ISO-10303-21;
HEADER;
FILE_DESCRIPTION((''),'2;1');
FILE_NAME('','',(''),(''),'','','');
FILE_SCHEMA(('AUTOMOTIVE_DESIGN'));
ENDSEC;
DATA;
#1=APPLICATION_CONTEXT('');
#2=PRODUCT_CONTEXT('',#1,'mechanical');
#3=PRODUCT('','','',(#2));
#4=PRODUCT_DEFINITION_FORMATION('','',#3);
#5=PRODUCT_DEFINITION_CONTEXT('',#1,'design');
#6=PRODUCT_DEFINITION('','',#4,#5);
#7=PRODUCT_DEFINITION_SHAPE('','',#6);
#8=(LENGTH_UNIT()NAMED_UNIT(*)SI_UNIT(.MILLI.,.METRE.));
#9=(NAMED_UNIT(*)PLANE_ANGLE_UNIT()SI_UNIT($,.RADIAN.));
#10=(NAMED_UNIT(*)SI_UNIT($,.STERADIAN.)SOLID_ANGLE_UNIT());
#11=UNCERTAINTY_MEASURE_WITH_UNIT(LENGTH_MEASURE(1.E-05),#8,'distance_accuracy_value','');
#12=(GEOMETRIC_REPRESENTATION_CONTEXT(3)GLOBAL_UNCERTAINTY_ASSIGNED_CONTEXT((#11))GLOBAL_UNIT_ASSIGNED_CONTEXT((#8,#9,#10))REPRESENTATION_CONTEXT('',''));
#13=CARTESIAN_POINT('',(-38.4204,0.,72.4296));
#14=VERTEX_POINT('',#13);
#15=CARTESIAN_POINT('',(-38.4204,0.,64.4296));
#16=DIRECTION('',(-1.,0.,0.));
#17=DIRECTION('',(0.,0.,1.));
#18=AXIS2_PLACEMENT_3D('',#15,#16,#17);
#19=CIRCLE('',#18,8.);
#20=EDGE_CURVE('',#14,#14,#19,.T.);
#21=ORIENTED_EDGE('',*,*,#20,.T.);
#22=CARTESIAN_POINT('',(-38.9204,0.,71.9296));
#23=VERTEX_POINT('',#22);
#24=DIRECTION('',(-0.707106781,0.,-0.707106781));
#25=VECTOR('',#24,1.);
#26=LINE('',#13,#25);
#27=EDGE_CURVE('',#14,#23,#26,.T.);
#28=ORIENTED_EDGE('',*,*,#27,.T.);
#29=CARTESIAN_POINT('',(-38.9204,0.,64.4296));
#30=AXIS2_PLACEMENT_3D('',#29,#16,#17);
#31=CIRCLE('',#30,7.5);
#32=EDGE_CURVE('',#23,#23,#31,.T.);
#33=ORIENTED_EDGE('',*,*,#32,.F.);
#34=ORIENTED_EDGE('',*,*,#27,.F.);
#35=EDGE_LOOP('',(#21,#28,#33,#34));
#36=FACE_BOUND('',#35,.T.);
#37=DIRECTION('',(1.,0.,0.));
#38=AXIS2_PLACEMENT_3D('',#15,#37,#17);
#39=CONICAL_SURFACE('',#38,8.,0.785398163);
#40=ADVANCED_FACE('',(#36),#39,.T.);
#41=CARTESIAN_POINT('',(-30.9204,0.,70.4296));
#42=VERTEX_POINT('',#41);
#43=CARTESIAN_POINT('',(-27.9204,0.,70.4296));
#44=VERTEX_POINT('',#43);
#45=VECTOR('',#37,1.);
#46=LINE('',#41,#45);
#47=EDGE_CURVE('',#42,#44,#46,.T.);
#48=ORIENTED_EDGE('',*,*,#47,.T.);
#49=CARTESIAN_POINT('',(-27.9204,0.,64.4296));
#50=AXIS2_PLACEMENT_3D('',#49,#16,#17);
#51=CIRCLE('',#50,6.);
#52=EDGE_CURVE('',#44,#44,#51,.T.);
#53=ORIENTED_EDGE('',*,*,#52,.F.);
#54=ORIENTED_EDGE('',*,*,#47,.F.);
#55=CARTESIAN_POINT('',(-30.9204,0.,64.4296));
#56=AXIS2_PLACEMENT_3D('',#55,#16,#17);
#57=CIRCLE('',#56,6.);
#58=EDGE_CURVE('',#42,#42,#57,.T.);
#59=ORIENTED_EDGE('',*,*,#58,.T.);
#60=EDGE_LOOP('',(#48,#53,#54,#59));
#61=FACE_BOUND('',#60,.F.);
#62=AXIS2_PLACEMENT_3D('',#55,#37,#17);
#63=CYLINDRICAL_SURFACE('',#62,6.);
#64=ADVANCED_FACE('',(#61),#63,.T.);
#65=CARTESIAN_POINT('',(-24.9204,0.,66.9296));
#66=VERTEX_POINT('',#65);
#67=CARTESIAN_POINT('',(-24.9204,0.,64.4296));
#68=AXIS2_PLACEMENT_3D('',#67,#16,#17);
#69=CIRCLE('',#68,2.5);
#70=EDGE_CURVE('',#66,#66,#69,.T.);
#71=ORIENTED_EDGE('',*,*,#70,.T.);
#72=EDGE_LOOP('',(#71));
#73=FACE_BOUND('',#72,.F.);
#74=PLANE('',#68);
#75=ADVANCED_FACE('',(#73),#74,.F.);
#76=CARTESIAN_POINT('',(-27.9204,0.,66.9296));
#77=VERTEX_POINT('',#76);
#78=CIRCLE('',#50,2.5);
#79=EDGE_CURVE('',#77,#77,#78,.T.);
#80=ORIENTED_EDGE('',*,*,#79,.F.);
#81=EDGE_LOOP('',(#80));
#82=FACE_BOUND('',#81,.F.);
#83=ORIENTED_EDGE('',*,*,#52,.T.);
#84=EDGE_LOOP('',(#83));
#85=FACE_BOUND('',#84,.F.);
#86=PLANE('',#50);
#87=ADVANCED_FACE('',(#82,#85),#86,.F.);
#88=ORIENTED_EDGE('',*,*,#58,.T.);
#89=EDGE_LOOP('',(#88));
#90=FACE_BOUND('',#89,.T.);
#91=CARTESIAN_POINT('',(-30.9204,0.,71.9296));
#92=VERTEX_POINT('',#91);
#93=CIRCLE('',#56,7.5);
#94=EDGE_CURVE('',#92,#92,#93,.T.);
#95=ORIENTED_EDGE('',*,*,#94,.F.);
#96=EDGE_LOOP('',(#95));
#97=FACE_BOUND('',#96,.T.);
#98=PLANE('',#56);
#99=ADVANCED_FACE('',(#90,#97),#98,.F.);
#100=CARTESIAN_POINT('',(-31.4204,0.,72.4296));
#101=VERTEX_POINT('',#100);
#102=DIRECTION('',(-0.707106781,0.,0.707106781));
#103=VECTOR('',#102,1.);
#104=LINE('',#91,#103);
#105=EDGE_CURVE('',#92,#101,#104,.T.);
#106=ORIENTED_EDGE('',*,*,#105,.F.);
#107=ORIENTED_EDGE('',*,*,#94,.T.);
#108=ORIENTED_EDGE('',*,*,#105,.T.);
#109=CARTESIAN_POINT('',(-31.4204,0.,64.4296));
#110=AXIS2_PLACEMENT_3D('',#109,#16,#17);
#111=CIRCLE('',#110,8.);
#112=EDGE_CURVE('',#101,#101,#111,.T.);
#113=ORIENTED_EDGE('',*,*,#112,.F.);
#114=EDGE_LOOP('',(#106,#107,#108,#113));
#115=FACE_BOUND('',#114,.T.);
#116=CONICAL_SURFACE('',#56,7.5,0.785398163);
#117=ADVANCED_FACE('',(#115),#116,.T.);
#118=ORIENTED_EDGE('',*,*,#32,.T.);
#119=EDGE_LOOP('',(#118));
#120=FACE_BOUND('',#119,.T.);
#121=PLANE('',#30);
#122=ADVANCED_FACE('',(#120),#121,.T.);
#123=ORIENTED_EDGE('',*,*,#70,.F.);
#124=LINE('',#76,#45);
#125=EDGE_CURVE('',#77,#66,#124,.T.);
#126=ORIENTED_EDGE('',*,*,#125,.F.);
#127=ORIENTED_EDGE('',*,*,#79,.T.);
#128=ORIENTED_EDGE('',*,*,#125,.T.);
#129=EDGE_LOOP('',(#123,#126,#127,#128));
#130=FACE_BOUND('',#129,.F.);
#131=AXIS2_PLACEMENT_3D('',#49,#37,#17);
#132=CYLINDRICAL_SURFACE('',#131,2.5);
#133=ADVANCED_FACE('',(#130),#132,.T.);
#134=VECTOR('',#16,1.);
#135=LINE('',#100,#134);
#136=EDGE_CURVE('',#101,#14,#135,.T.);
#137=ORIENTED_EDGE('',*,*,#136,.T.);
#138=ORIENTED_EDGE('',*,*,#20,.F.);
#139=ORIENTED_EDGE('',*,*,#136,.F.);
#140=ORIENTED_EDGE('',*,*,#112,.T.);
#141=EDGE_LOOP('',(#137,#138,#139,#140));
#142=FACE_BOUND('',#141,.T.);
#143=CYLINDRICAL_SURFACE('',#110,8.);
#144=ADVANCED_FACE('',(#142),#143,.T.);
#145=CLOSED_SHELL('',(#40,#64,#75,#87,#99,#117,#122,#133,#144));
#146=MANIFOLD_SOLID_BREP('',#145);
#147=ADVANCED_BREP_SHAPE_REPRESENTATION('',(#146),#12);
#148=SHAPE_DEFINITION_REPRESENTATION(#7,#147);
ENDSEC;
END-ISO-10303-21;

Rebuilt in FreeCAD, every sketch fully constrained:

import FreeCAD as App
import Part
import Sketcher
from FreeCAD import Vector

doc = App.newDocument("Part")
body = doc.addObject("PartDesign::Body", "Body")

# Sketch on XZ plane
sketch1 = body.newObject("Sketcher::SketchObject", "Sketch")
sketch1.AttachmentSupport = (doc.getObject("XZ_Plane"), [""])
sketch1.MapMode = "FlatFace"
sketch1.addGeometry([
    Part.LineSegment(Vector(-24.9, 66.9, 0), Vector(-24.9, 64.4, 0)),  # 0
    Part.LineSegment(Vector(-24.9, 64.4, 0), Vector(-38.9, 64.4, 0)),  # 1
    Part.LineSegment(Vector(-38.9, 64.4, 0), Vector(-38.9, 71.9, 0)),  # 2
    Part.LineSegment(Vector(-38.9, 71.9, 0), Vector(-38.4, 72.4, 0)),  # 3
    Part.LineSegment(Vector(-38.4, 72.4, 0), Vector(-31.4, 72.4, 0)),  # 4
    Part.LineSegment(Vector(-31.4, 72.4, 0), Vector(-30.9, 71.9, 0)),  # 5
    Part.LineSegment(Vector(-30.9, 71.9, 0), Vector(-30.9, 70.4, 0)),  # 6
    Part.LineSegment(Vector(-30.9, 70.4, 0), Vector(-27.9, 70.4, 0)),  # 7
    Part.LineSegment(Vector(-27.9, 70.4, 0), Vector(-27.9, 66.9, 0)),  # 8
    Part.LineSegment(Vector(-27.9, 66.9, 0), Vector(-24.9, 66.9, 0)),  # 9
], False)
sketch1.addGeometry(Part.LineSegment(Vector(-24.9, 64.4, 0), Vector(-38.9, 64.4, 0)), True)  # axis
sketch1.addConstraint([
    Sketcher.Constraint("Coincident", 0, 2, 1, 1),
    Sketcher.Constraint("Coincident", 1, 2, 2, 1),
    Sketcher.Constraint("Coincident", 2, 2, 3, 1),
    Sketcher.Constraint("Coincident", 3, 2, 4, 1),
    Sketcher.Constraint("Coincident", 4, 2, 5, 1),
    Sketcher.Constraint("Coincident", 5, 2, 6, 1),
    Sketcher.Constraint("Coincident", 6, 2, 7, 1),
    Sketcher.Constraint("Coincident", 7, 2, 8, 1),
    Sketcher.Constraint("Coincident", 8, 2, 9, 1),
    Sketcher.Constraint("Coincident", 9, 2, 0, 1),
    Sketcher.Constraint("Vertical", 0),
    Sketcher.Constraint("Horizontal", 1),
    Sketcher.Constraint("Vertical", 2),
    Sketcher.Constraint("Horizontal", 4),
    Sketcher.Constraint("Vertical", 6),
    Sketcher.Constraint("Horizontal", 7),
    Sketcher.Constraint("Vertical", 8),
    Sketcher.Constraint("Horizontal", 9),
    Sketcher.Constraint("Horizontal", 10),
    Sketcher.Constraint("Coincident", 10, 1, 0, 2),
    Sketcher.Constraint("Perpendicular", 3, 5),
    Sketcher.Constraint("Horizontal", 2, 2, 5, 2),
    Sketcher.Constraint("Vertical", 2, 2, 10, 2),
    Sketcher.Constraint("Equal", 7, 9),
    Sketcher.Constraint("Equal", 3, 5),
    Sketcher.Constraint("DistanceX", 1, 2, 1, 1, 14.0),
    Sketcher.Constraint("DistanceX", 4, 1, 4, 2, 7.0),
    Sketcher.Constraint("DistanceX", 7, 1, 7, 2, 3.0),
    Sketcher.Constraint("DistanceY", 0, 2, 0, 1, 2.5),
    Sketcher.Constraint("DistanceY", 2, 1, 2, 2, 7.5),
    Sketcher.Constraint("DistanceY", 6, 2, 6, 1, 1.5),
    Sketcher.Constraint("DistanceX", 0, 2, -1, 1, 24.9204),
    Sketcher.Constraint("DistanceY", -1, 1, 0, 2, 64.4296),
])
revolution = body.newObject("PartDesign::Revolution", "Revolution")
revolution.Profile = sketch1
revolution.ReferenceAxis = (sketch1, ["Axis0"])
revolution.Angle = 360

doc.recompute()
